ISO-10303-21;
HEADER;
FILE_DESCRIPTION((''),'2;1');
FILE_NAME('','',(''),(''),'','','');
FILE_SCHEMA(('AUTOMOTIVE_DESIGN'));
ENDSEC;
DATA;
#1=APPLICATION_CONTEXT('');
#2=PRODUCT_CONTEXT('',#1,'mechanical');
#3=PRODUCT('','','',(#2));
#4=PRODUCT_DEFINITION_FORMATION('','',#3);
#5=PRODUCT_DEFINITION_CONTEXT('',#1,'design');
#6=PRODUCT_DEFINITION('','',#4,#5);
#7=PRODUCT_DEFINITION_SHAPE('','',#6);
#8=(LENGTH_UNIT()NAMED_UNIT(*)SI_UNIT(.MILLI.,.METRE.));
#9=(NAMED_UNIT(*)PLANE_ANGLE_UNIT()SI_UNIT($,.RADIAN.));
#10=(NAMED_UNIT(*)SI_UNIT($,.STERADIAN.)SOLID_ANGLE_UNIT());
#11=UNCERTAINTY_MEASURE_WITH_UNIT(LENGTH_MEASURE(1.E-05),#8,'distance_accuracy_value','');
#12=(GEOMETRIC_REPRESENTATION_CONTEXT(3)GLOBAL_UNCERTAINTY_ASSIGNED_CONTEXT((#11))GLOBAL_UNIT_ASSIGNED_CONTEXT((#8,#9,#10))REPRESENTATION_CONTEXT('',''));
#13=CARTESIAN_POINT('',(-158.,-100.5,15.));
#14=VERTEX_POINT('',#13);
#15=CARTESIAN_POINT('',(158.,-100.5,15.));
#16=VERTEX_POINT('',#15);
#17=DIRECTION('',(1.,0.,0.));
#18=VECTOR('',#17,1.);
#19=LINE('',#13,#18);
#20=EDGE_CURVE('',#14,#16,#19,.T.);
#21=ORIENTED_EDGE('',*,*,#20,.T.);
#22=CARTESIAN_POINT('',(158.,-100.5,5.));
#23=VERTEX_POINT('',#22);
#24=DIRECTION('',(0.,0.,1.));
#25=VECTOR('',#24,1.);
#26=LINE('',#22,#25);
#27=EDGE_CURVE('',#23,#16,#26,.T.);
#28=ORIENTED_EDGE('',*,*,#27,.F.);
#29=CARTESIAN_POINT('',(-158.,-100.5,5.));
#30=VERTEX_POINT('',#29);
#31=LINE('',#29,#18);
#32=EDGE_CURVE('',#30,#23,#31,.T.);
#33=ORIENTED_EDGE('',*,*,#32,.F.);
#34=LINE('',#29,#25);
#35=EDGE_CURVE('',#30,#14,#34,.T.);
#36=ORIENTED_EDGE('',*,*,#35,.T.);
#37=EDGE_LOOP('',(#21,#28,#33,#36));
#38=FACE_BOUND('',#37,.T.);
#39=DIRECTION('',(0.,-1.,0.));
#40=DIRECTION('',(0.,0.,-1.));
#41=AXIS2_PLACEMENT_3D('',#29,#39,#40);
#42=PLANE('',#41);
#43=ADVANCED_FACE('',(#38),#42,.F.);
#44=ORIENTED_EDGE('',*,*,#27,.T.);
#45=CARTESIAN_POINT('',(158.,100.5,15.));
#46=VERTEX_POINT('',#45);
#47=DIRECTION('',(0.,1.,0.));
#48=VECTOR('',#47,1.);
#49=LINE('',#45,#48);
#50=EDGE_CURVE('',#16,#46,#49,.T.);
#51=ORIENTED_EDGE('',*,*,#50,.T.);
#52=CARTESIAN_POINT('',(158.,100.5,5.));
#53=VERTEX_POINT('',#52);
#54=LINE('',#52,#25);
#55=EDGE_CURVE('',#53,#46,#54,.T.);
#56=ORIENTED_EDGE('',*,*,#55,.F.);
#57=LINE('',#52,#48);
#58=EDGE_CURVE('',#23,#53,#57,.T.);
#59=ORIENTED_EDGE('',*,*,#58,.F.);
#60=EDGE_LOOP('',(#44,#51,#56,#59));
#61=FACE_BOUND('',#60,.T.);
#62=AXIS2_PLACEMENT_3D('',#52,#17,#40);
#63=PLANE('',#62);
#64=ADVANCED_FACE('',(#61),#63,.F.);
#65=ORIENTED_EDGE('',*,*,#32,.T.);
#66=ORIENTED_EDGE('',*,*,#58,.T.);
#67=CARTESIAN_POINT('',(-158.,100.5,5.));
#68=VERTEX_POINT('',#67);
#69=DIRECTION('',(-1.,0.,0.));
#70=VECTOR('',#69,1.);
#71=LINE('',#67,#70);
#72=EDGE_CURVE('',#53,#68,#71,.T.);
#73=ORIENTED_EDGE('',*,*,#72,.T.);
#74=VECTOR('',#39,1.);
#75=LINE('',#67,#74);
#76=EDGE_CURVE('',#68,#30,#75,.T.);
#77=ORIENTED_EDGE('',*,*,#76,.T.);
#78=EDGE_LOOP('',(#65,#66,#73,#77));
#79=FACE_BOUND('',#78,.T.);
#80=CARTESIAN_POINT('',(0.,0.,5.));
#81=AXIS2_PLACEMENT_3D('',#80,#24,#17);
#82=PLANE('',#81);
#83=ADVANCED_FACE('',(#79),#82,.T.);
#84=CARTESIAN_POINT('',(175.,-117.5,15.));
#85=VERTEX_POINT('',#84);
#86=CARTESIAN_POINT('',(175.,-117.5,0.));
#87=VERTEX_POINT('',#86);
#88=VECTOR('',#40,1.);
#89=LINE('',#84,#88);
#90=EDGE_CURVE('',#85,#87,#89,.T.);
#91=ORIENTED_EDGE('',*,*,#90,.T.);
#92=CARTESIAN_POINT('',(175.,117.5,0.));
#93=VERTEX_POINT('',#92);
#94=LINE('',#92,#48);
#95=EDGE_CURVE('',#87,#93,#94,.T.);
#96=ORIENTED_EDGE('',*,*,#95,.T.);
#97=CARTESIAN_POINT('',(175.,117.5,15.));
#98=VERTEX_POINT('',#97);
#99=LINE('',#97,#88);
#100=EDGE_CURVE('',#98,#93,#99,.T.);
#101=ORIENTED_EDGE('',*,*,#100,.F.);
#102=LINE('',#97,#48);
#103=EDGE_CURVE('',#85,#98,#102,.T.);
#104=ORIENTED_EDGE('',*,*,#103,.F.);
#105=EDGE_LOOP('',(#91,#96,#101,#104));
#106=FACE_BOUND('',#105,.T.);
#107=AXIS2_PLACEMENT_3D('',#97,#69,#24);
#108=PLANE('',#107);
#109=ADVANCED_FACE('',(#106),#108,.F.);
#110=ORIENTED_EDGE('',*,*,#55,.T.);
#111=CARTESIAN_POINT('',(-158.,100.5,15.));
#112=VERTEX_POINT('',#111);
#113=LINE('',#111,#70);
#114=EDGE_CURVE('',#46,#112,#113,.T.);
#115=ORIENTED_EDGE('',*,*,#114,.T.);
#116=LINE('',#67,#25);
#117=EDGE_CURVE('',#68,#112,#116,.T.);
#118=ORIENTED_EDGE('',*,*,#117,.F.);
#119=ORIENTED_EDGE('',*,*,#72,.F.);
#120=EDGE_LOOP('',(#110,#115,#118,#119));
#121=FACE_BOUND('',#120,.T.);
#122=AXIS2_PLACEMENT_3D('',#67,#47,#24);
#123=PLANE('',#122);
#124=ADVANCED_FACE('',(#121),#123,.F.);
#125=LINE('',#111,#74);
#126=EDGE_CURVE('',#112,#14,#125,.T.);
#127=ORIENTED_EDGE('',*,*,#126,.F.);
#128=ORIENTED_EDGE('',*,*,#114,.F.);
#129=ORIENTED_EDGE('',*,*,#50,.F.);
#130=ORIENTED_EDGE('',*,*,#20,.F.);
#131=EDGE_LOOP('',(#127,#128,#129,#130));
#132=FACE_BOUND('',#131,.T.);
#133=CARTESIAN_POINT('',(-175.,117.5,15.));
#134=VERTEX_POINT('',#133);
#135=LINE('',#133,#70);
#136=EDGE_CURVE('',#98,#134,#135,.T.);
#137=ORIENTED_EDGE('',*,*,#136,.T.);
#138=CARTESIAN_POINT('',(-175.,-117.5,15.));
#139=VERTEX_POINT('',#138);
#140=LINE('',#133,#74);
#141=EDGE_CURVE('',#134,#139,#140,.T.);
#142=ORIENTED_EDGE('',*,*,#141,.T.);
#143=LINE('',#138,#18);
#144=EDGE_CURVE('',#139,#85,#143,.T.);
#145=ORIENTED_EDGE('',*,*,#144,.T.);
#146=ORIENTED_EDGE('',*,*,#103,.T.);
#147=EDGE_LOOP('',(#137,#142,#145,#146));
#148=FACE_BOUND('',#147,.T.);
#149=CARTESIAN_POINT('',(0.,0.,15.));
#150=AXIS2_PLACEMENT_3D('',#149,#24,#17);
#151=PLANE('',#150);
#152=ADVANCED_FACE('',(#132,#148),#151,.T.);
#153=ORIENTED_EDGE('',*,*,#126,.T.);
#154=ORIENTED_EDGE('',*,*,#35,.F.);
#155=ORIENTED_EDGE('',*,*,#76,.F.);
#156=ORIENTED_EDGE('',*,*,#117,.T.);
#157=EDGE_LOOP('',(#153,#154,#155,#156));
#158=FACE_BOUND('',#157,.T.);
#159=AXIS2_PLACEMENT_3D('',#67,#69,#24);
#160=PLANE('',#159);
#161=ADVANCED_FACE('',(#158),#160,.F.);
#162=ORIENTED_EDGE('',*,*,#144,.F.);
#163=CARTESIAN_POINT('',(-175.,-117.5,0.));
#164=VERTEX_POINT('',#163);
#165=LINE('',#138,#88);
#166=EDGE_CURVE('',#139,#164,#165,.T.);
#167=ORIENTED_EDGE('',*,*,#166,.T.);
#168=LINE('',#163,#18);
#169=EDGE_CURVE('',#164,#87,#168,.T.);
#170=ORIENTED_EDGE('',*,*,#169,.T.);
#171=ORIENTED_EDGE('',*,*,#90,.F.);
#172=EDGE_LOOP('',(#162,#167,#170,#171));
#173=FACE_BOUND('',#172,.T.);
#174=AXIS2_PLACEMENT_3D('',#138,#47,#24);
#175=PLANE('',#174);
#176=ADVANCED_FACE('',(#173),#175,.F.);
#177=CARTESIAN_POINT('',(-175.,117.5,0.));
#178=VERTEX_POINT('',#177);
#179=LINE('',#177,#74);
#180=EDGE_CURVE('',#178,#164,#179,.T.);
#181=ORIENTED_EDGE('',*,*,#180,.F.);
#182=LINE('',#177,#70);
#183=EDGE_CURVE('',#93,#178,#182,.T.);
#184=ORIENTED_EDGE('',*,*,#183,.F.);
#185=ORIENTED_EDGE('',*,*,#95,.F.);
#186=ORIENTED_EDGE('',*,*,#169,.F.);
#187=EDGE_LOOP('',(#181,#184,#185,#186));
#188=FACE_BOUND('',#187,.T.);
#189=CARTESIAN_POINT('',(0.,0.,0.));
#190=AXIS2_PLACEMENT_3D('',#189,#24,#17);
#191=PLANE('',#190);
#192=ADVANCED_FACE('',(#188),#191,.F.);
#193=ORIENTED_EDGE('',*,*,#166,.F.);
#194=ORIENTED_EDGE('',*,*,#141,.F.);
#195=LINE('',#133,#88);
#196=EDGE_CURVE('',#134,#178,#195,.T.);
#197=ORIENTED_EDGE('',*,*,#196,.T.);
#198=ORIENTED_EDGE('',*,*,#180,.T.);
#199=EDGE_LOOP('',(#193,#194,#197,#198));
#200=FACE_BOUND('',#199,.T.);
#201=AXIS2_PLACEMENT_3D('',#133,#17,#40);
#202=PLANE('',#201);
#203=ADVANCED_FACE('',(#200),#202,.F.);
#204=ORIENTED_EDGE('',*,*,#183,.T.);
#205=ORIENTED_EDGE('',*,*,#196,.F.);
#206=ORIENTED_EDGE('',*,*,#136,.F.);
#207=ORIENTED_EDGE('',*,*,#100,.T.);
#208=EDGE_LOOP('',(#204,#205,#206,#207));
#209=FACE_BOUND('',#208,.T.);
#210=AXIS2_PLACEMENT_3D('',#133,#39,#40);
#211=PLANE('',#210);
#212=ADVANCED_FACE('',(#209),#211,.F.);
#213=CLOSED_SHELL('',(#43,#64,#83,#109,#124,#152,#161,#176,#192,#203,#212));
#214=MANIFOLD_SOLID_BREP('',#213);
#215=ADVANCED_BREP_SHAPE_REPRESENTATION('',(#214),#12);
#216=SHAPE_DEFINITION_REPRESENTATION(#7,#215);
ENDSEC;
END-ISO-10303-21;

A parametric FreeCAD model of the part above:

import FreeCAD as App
import Part
import Sketcher

doc = App.newDocument("Part")
body = doc.addObject("PartDesign::Body", "Body")

# Sketch on XY plane
sketch1 = body.newObject("Sketcher::SketchObject", "Sketch")
sketch1.AttachmentSupport = (doc.getObject("XY_Plane"), [""])
sketch1.MapMode = "FlatFace"
sketch1.addGeometry([
    Part.LineSegment(App.Vector(-175, 117.5, 0), App.Vector(-175, -117.5, 0)),
    Part.LineSegment(App.Vector(-175, -117.5, 0), App.Vector(175, -117.5, 0)),
    Part.LineSegment(App.Vector(175, -117.5, 0), App.Vector(175, 117.5, 0)),
    Part.LineSegment(App.Vector(175, 117.5, 0), App.Vector(-175, 117.5, 0)),
], False)
sketch1.addConstraint([
    Sketcher.Constraint("Coincident", 0, 2, 1, 1),
    Sketcher.Constraint("Coincident", 1, 2, 2, 1),
    Sketcher.Constraint("Coincident", 2, 2, 3, 1),
    Sketcher.Constraint("Coincident", 3, 2, 0, 1),
    Sketcher.Constraint("Vertical", 0),
    Sketcher.Constraint("Horizontal", 1),
    Sketcher.Constraint("Vertical", 2),
    Sketcher.Constraint("Horizontal", 3),
    Sketcher.Constraint("Symmetric", 0, 2, 2, 2, -1, 1),
    Sketcher.Constraint("DistanceX", 1, 1, 1, 2, 350.0),
    Sketcher.Constraint("DistanceY", 0, 2, 0, 1, 235.0),
])
pad1 = body.newObject("PartDesign::Pad", "Pad")
pad1.Profile = sketch1
pad1.Length = 15

# Sketch on XY plane
sketch2 = body.newObject("Sketcher::SketchObject", "Sketch001")
sketch2.AttachmentSupport = (doc.getObject("XY_Plane"), [""])
sketch2.MapMode = "FlatFace"
sketch2.AttachmentOffset = App.Placement(App.Vector(0, 0, 15), App.Rotation())
sketch2.addGeometry([
    Part.LineSegment(App.Vector(-158, 100.5, 0), App.Vector(-158, -100.5, 0)),
    Part.LineSegment(App.Vector(-158, -100.5, 0), App.Vector(158, -100.5, 0)),
    Part.LineSegment(App.Vector(158, -100.5, 0), App.Vector(158, 100.5, 0)),
    Part.LineSegment(App.Vector(158, 100.5, 0), App.Vector(-158, 100.5, 0)),
], False)
sketch2.addConstraint([
    Sketcher.Constraint("Coincident", 0, 2, 1, 1),
    Sketcher.Constraint("Coincident", 1, 2, 2, 1),
    Sketcher.Constraint("Coincident", 2, 2, 3, 1),
    Sketcher.Constraint("Coincident", 3, 2, 0, 1),
    Sketcher.Constraint("Vertical", 0),
    Sketcher.Constraint("Horizontal", 1),
    Sketcher.Constraint("Vertical", 2),
    Sketcher.Constraint("Horizontal", 3),
    Sketcher.Constraint("Symmetric", 0, 2, 2, 2, -1, 1),
    Sketcher.Constraint("DistanceX", 1, 1, 1, 2, 316.0),
    Sketcher.Constraint("DistanceY", 0, 2, 0, 1, 201.0),
])
pocket1 = body.newObject("PartDesign::Pocket", "Pocket")
pocket1.Profile = sketch2
pocket1.Length = 10

doc.recompute()
